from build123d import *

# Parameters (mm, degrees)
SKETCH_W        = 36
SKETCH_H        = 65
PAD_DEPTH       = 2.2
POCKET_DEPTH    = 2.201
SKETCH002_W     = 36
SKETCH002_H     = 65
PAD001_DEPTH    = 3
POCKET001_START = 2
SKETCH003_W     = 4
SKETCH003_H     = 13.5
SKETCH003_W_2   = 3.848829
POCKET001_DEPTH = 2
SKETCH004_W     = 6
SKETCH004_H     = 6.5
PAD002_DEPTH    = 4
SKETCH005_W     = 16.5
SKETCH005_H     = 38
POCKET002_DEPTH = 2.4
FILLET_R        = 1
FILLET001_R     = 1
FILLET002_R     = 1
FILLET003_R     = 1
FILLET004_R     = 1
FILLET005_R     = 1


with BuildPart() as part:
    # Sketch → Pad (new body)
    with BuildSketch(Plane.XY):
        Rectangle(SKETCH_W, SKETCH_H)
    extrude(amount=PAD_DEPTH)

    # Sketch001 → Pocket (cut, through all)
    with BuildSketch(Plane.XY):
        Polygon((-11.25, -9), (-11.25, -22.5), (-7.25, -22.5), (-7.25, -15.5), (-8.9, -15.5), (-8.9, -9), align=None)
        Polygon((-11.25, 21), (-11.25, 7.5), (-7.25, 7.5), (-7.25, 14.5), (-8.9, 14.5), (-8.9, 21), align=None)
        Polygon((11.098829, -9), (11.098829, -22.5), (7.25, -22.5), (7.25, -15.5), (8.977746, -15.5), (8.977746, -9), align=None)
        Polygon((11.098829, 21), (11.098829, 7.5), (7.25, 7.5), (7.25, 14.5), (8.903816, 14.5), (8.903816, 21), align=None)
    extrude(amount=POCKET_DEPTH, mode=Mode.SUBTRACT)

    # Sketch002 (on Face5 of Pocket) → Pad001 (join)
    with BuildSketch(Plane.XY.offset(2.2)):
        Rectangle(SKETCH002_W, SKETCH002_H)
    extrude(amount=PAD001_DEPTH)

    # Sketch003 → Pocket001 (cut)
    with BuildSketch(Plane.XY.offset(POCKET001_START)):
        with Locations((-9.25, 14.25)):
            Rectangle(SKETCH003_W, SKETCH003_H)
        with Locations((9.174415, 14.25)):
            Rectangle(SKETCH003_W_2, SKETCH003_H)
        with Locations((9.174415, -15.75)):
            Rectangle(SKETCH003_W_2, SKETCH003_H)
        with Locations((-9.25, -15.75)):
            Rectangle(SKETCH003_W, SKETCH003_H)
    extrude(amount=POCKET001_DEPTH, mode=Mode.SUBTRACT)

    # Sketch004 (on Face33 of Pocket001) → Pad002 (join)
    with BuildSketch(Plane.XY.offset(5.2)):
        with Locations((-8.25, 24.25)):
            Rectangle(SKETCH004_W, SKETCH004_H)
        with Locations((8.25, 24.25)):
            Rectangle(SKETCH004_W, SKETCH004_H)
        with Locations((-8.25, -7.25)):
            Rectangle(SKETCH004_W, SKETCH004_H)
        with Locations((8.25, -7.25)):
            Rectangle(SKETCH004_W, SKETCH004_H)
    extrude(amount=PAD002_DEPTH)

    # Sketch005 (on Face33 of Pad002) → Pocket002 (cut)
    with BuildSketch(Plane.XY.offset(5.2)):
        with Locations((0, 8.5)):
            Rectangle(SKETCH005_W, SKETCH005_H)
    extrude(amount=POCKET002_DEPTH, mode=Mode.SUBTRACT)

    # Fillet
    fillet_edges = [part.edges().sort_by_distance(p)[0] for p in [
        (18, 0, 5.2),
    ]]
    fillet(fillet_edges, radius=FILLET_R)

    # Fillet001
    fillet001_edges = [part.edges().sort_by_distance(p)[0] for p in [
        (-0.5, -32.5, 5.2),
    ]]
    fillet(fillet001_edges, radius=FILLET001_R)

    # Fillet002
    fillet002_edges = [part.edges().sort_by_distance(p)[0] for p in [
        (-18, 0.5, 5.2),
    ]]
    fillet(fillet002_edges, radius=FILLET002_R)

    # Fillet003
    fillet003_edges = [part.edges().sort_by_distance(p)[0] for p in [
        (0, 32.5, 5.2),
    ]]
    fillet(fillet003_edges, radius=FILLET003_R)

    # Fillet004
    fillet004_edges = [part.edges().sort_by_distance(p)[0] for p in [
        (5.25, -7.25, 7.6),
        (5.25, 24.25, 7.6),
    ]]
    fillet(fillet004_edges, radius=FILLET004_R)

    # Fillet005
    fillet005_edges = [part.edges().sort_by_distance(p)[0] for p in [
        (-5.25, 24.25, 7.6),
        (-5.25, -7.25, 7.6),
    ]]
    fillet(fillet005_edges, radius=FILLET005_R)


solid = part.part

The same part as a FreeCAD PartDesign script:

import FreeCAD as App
import Part
import Sketcher
Q = App.Units.Quantity


def edges_at(feature, points):
    """Names of the edges that pass closest to the given points."""
    edges = feature.Shape.Edges
    near = lambda p: min(range(len(edges)), key=lambda i: edges[i].distToShape(Part.Vertex(*p))[0])
    return sorted({f"Edge{near(p) + 1}" for p in points})


def add_polygon(sketch, points):
    """Adds a closed chain of lines whose ends are joined by coincident constraints."""
    first, n = sketch.GeometryCount, len(points)
    for a, b in zip(points, points[1:] + points[:1]):
        sketch.addGeometry(Part.LineSegment(App.Vector(*a, 0), App.Vector(*b, 0)), False)
    for i in range(n):
        sketch.addConstraint(Sketcher.Constraint("Coincident", first + i, 2, first + (i + 1) % n, 1))

doc = App.newDocument("Part")
body = doc.addObject("PartDesign::Body", "Body")

# Sketch on XY plane
sketch1 = body.newObject("Sketcher::SketchObject", "Sketch")
sketch1.AttachmentSupport = (doc.getObject("XY_Plane"), [""])
sketch1.MapMode = "FlatFace"
add_polygon(sketch1, [(-18, 32.5), (-18, -32.5), (18, -32.5), (18, 32.5)])  # lines 0-3
sketch1.addConstraint(Sketcher.Constraint("Vertical", 0))
sketch1.addConstraint(Sketcher.Constraint("Horizontal", 1))
sketch1.addConstraint(Sketcher.Constraint("Vertical", 2))
sketch1.addConstraint(Sketcher.Constraint("Horizontal", 3))
sketch1.addConstraint(Sketcher.Constraint("Symmetric", 0, 2, 2, 2, -1, 1))
sketch1.addConstraint(Sketcher.Constraint("DistanceX", 1, 1, 1, 2, Q("36 mm")))
sketch1.addConstraint(Sketcher.Constraint("DistanceY", 0, 2, 0, 1, Q("65 mm")))
pad1 = body.newObject("PartDesign::Pad", "Pad")
pad1.Profile = sketch1
pad1.Length = 2.2

# Sketch on XY plane
sketch2 = body.newObject("Sketcher::SketchObject", "Sketch001")
sketch2.AttachmentSupport = (doc.getObject("XY_Plane"), [""])
sketch2.MapMode = "FlatFace"
add_polygon(sketch2, [(-11.25, -9), (-11.25, -22.5), (-7.25, -22.5), (-7.25, -15.5), (-8.9, -15.5), (-8.9, -9)])  # lines 0-5
add_polygon(sketch2, [(-11.25, 21), (-11.25, 7.5), (-7.25, 7.5), (-7.25, 14.5), (-8.9, 14.5), (-8.9, 21)])  # lines 6-11
add_polygon(sketch2, [(11.098829, -22.5), (11.098829, -9), (8.977746, -9), (8.977746, -15.5), (7.25, -15.5), (7.25, -22.5)])  # lines 12-17
add_polygon(sketch2, [(11.098829, 7.5), (11.098829, 21), (8.903816, 21), (8.903816, 14.5), (7.25, 14.5), (7.25, 7.5)])  # lines 18-23
sketch2.addConstraint(Sketcher.Constraint("Vertical", 0))
sketch2.addConstraint(Sketcher.Constraint("Horizontal", 1))
sketch2.addConstraint(Sketcher.Constraint("Vertical", 2))
sketch2.addConstraint(Sketcher.Constraint("Horizontal", 3))
sketch2.addConstraint(Sketcher.Constraint("Vertical", 4))
sketch2.addConstraint(Sketcher.Constraint("Horizontal", 5))
sketch2.addConstraint(Sketcher.Constraint("Vertical", 6))
sketch2.addConstraint(Sketcher.Constraint("Horizontal", 7))
sketch2.addConstraint(Sketcher.Constraint("Vertical", 8))
sketch2.addConstraint(Sketcher.Constraint("Horizontal", 9))
sketch2.addConstraint(Sketcher.Constraint("Vertical", 10))
sketch2.addConstraint(Sketcher.Constraint("Horizontal", 11))
sketch2.addConstraint(Sketcher.Constraint("Vertical", 12))
sketch2.addConstraint(Sketcher.Constraint("Horizontal", 13))
sketch2.addConstraint(Sketcher.Constraint("Vertical", 14))
sketch2.addConstraint(Sketcher.Constraint("Horizontal", 15))
sketch2.addConstraint(Sketcher.Constraint("Vertical", 16))
sketch2.addConstraint(Sketcher.Constraint("Horizontal", 17))
sketch2.addConstraint(Sketcher.Constraint("Vertical", 18))
sketch2.addConstraint(Sketcher.Constraint("Horizontal", 19))
sketch2.addConstraint(Sketcher.Constraint("Vertical", 20))
sketch2.addConstraint(Sketcher.Constraint("Horizontal", 21))
sketch2.addConstraint(Sketcher.Constraint("Vertical", 22))
sketch2.addConstraint(Sketcher.Constraint("Horizontal", 23))
sketch2.addConstraint(Sketcher.Constraint("Symmetric", 2, 2, 15, 2, -2))
sketch2.addConstraint(Sketcher.Constraint("Symmetric", 8, 2, 21, 2, -2))
sketch2.addConstraint(Sketcher.Constraint("Horizontal", 5, 2, 12, 2))
sketch2.addConstraint(Sketcher.Constraint("Horizontal", 1, 2, 16, 2))
sketch2.addConstraint(Sketcher.Constraint("Horizontal", 11, 2, 18, 2))
sketch2.addConstraint(Sketcher.Constraint("Horizontal", 7, 2, 22, 2))
sketch2.addConstraint(Sketcher.Constraint("Vertical", 5, 2, 6, 2))
sketch2.addConstraint(Sketcher.Constraint("Vertical", 2, 2, 7, 2))
sketch2.addConstraint(Sketcher.Constraint("Vertical", 4, 2, 9, 2))
sketch2.addConstraint(Sketcher.Constraint("Vertical", 17, 2, 18, 2))
sketch2.addConstraint(Sketcher.Constraint("Equal", 0, 6))
sketch2.addConstraint(Sketcher.Constraint("Equal", 2, 8))
sketch2.addConstraint(Sketcher.Constraint("DistanceX", 1, 1, 1, 2, Q("4 mm")))
sketch2.addConstraint(Sketcher.Constraint("DistanceY", 2, 1, 2, 2, Q("7 mm")))
sketch2.addConstraint(Sketcher.Constraint("DistanceY", 0, 2, 0, 1, Q("13.5 mm")))
sketch2.addConstraint(Sketcher.Constraint("DistanceY", 4, 2, -1, 1, Q("9 mm")))
sketch2.addConstraint(Sketcher.Constraint("DistanceY", -1, 1, 10, 2, Q("21 mm")))
sketch2.addConstraint(Sketcher.Constraint("DistanceX", 3, 2, 3, 1, Q("1.65 mm")))
sketch2.addConstraint(Sketcher.Constraint("DistanceX", 3, 2, -1, 1, Q("8.9 mm")))
sketch2.addConstraint(Sketcher.Constraint("DistanceX", 17, 1, 17, 2, Q("3.848829 mm")))
sketch2.addConstraint(Sketcher.Constraint("DistanceX", 13, 2, 13, 1, Q("2.121083 mm")))
sketch2.addConstraint(Sketcher.Constraint("DistanceX", 19, 2, 19, 1, Q("2.195013 mm")))
pocket1 = body.newObject("PartDesign::Pocket", "Pocket")
pocket1.Profile = sketch2
pocket1.Type = "ThroughAll"
pocket1.Reversed = True

# Sketch on XY plane
sketch3 = body.newObject("Sketcher::SketchObject", "Sketch002")
sketch3.AttachmentSupport = (doc.getObject("XY_Plane"), [""])
sketch3.MapMode = "FlatFace"
sketch3.AttachmentOffset = App.Placement(App.Vector(0, 0, 2.2), App.Rotation())
add_polygon(sketch3, [(-18, 32.5), (-18, -32.5), (18, -32.5), (18, 32.5)])  # lines 0-3
sketch3.addConstraint(Sketcher.Constraint("Vertical", 0))
sketch3.addConstraint(Sketcher.Constraint("Horizontal", 1))
sketch3.addConstraint(Sketcher.Constraint("Vertical", 2))
sketch3.addConstraint(Sketcher.Constraint("Horizontal", 3))
sketch3.addConstraint(Sketcher.Constraint("Symmetric", 0, 2, 2, 2, -1, 1))
sketch3.addConstraint(Sketcher.Constraint("DistanceX", 1, 1, 1, 2, Q("36 mm")))
sketch3.addConstraint(Sketcher.Constraint("DistanceY", 0, 2, 0, 1, Q("65 mm")))
pad2 = body.newObject("PartDesign::Pad", "Pad001")
pad2.Profile = sketch3
pad2.Length = 3

# Sketch on XY plane
sketch4 = body.newObject("Sketcher::SketchObject", "Sketch003")
sketch4.AttachmentSupport = (doc.getObject("XY_Plane"), [""])
sketch4.MapMode = "FlatFace"
sketch4.AttachmentOffset = App.Placement(App.Vector(0, 0, 2), App.Rotation())
add_polygon(sketch4, [(-11.25, 21), (-11.25, 7.5), (-7.25, 7.5), (-7.25, 21)])  # lines 0-3
add_polygon(sketch4, [(7.25, 21), (7.25, 7.5), (11.09883, 7.5), (11.09883, 21)])  # lines 4-7
add_polygon(sketch4, [(7.25, -9), (7.25, -22.5), (11.09883, -22.5), (11.09883, -9)])  # lines 8-11
add_polygon(sketch4, [(-11.25, -9), (-11.25, -22.5), (-7.25, -22.5), (-7.25, -9)])  # lines 12-15
sketch4.addConstraint(Sketcher.Constraint("Vertical", 0))
sketch4.addConstraint(Sketcher.Constraint("Horizontal", 1))
sketch4.addConstraint(Sketcher.Constraint("Vertical", 2))
sketch4.addConstraint(Sketcher.Constraint("Horizontal", 3))
sketch4.addConstraint(Sketcher.Constraint("Vertical", 4))
sketch4.addConstraint(Sketcher.Constraint("Horizontal", 5))
sketch4.addConstraint(Sketcher.Constraint("Vertical", 6))
sketch4.addConstraint(Sketcher.Constraint("Horizontal", 7))
sketch4.addConstraint(Sketcher.Constraint("Vertical", 8))
sketch4.addConstraint(Sketcher.Constraint("Horizontal", 9))
sketch4.addConstraint(Sketcher.Constraint("Vertical", 10))
sketch4.addConstraint(Sketcher.Constraint("Horizontal", 11))
sketch4.addConstraint(Sketcher.Constraint("Vertical", 12))
sketch4.addConstraint(Sketcher.Constraint("Horizontal", 13))
sketch4.addConstraint(Sketcher.Constraint("Vertical", 14))
sketch4.addConstraint(Sketcher.Constraint("Horizontal", 15))
sketch4.addConstraint(Sketcher.Constraint("Symmetric", 1, 2, 4, 2, -2))
sketch4.addConstraint(Sketcher.Constraint("Symmetric", 8, 2, 13, 2, -2))
sketch4.addConstraint(Sketcher.Constraint("Horizontal", 3, 2, 6, 2))
sketch4.addConstraint(Sketcher.Constraint("Horizontal", 11, 2, 14, 2))
sketch4.addConstraint(Sketcher.Constraint("Vertical", 7, 2, 8, 2))
sketch4.addConstraint(Sketcher.Constraint("Vertical", 6, 2, 9, 2))
sketch4.addConstraint(Sketcher.Constraint("Vertical", 3, 2, 12, 2))
sketch4.addConstraint(Sketcher.Constraint("Equal", 6, 8))
sketch4.addConstraint(Sketcher.Constraint("DistanceX", 1, 1, 1, 2, Q("4 mm")))
sketch4.addConstraint(Sketcher.Constraint("DistanceY", 0, 2, 0, 1, Q("13.5 mm")))
sketch4.addConstraint(Sketcher.Constraint("DistanceY", -1, 1, 2, 2, Q("21 mm")))
sketch4.addConstraint(Sketcher.Constraint("DistanceY", 10, 2, -1, 1, Q("9 mm")))
sketch4.addConstraint(Sketcher.Constraint("DistanceX", 1, 2, 4, 2, Q("14.5 mm")))
sketch4.addConstraint(Sketcher.Constraint("DistanceX", 5, 1, 5, 2, Q("3.848829 mm")))
pocket2 = body.newObject("PartDesign::Pocket", "Pocket001")
pocket2.Profile = sketch4
pocket2.Length = 2
pocket2.Reversed = True

# Sketch on XY plane
sketch5 = body.newObject("Sketcher::SketchObject", "Sketch004")
sketch5.AttachmentSupport = (doc.getObject("XY_Plane"), [""])
sketch5.MapMode = "FlatFace"
sketch5.AttachmentOffset = App.Placement(App.Vector(0, 0, 5.2), App.Rotation())
add_polygon(sketch5, [(-11.25, 27.5), (-11.25, 21), (-5.25, 21), (-5.25, 27.5)])  # lines 0-3
add_polygon(sketch5, [(5.25, 27.5), (5.25, 21), (11.25, 21), (11.25, 27.5)])  # lines 4-7
add_polygon(sketch5, [(-11.25, -4), (-11.25, -10.5), (-5.25, -10.5), (-5.25, -4)])  # lines 8-11
add_polygon(sketch5, [(5.25, -4), (5.25, -10.5), (11.25, -10.5), (11.25, -4)])  # lines 12-15
sketch5.addConstraint(Sketcher.Constraint("Vertical", 0))
sketch5.addConstraint(Sketcher.Constraint("Horizontal", 1))
sketch5.addConstraint(Sketcher.Constraint("Vertical", 2))
sketch5.addConstraint(Sketcher.Constraint("Horizontal", 3))
sketch5.addConstraint(Sketcher.Constraint("Vertical", 4))
sketch5.addConstraint(Sketcher.Constraint("Horizontal", 5))
sketch5.addConstraint(Sketcher.Constraint("Vertical", 6))
sketch5.addConstraint(Sketcher.Constraint("Horizontal", 7))
sketch5.addConstraint(Sketcher.Constraint("Vertical", 8))
sketch5.addConstraint(Sketcher.Constraint("Horizontal", 9))
sketch5.addConstraint(Sketcher.Constraint("Vertical", 10))
sketch5.addConstraint(Sketcher.Constraint("Horizontal", 11))
sketch5.addConstraint(Sketcher.Constraint("Vertical", 12))
sketch5.addConstraint(Sketcher.Constraint("Horizontal", 13))
sketch5.addConstraint(Sketcher.Constraint("Vertical", 14))
sketch5.addConstraint(Sketcher.Constraint("Horizontal", 15))
sketch5.addConstraint(Sketcher.Constraint("Symmetric", 1, 2, 4, 2, -2))
sketch5.addConstraint(Sketcher.Constraint("Symmetric", 3, 2, 6, 2, -2))
sketch5.addConstraint(Sketcher.Constraint("Symmetric", 9, 2, 12, 2, -2))
sketch5.addConstraint(Sketcher.Constraint("Symmetric", 11, 2, 14, 2, -2))
sketch5.addConstraint(Sketcher.Constraint("Vertical", 3, 2, 8, 2))
sketch5.addConstraint(Sketcher.Constraint("Vertical", 2, 2, 9, 2))
sketch5.addConstraint(Sketcher.Constraint("Equal", 6, 8))
sketch5.addConstraint(Sketcher.Constraint("DistanceX", 1, 1, 1, 2, Q("6 mm")))
sketch5.addConstraint(Sketcher.Constraint("DistanceY", 0, 2, 0, 1, Q("6.5 mm")))
sketch5.addConstraint(Sketcher.Constraint("DistanceY", -1, 1, 0, 2, Q("21 mm")))
sketch5.addConstraint(Sketcher.Constraint("DistanceY", 10, 2, -1, 1, Q("4 mm")))
sketch5.addConstraint(Sketcher.Constraint("DistanceX", 1, 2, 4, 2, Q("10.5 mm")))
pad3 = body.newObject("PartDesign::Pad", "Pad002")
pad3.Profile = sketch5
pad3.Length = 4

# Sketch on XY plane
sketch6 = body.newObject("Sketcher::SketchObject", "Sketch005")
sketch6.AttachmentSupport = (doc.getObject("XY_Plane"), [""])
sketch6.MapMode = "FlatFace"
sketch6.AttachmentOffset = App.Placement(App.Vector(0, 0, 5.2), App.Rotation())
add_polygon(sketch6, [(-8.25, 27.5), (-8.25, -10.5), (8.25, -10.5), (8.25, 27.5)])  # lines 0-3
sketch6.addConstraint(Sketcher.Constraint("Vertical", 0))
sketch6.addConstraint(Sketcher.Constraint("Horizontal", 1))
sketch6.addConstraint(Sketcher.Constraint("Vertical", 2))
sketch6.addConstraint(Sketcher.Constraint("Horizontal", 3))
sketch6.addConstraint(Sketcher.Constraint("DistanceY", 0, 2, 0, 1, Q("38 mm")))
sketch6.addConstraint(Sketcher.Constraint("DistanceX", 1, 1, 1, 2, Q("16.5 mm")))
sketch6.addConstraint(Sketcher.Constraint("DistanceY", 0, 2, -1, 1, Q("10.5 mm")))
sketch6.addConstraint(Sketcher.Constraint("DistanceX", 0, 2, -1, 1, Q("8.25 mm")))
pocket3 = body.newObject("PartDesign::Pocket", "Pocket002")
pocket3.Profile = sketch6
pocket3.Length = 2.4
pocket3.Reversed = True
doc.recompute()

fillet = body.newObject("PartDesign::Fillet", "Fillet")
fillet.Base = (pocket3, edges_at(pocket3, [(18, 0, 5.2)]))
fillet.Radius = 1
doc.recompute()

fillet2 = body.newObject("PartDesign::Fillet", "Fillet001")
fillet2.Base = (fillet, edges_at(fillet, [(-0.5, -32.5, 5.2)]))
fillet2.Radius = 1
doc.recompute()

fillet3 = body.newObject("PartDesign::Fillet", "Fillet002")
fillet3.Base = (fillet2, edges_at(fillet2, [(-18, 0.5, 5.2)]))
fillet3.Radius = 1
doc.recompute()

fillet4 = body.newObject("PartDesign::Fillet", "Fillet003")
fillet4.Base = (fillet3, edges_at(fillet3, [(0, 32.5, 5.2)]))
fillet4.Radius = 1
doc.recompute()

fillet5 = body.newObject("PartDesign::Fillet", "Fillet004")
fillet5.Base = (fillet4, edges_at(fillet4, [(5.25, -7.25, 7.6), (5.25, 24.25, 7.6)]))
fillet5.Radius = 1
doc.recompute()

fillet6 = body.newObject("PartDesign::Fillet", "Fillet005")
fillet6.Base = (fillet5, edges_at(fillet5, [(-5.25, 24.25, 7.6), (-5.25, -7.25, 7.6)]))
fillet6.Radius = 1

doc.recompute()
